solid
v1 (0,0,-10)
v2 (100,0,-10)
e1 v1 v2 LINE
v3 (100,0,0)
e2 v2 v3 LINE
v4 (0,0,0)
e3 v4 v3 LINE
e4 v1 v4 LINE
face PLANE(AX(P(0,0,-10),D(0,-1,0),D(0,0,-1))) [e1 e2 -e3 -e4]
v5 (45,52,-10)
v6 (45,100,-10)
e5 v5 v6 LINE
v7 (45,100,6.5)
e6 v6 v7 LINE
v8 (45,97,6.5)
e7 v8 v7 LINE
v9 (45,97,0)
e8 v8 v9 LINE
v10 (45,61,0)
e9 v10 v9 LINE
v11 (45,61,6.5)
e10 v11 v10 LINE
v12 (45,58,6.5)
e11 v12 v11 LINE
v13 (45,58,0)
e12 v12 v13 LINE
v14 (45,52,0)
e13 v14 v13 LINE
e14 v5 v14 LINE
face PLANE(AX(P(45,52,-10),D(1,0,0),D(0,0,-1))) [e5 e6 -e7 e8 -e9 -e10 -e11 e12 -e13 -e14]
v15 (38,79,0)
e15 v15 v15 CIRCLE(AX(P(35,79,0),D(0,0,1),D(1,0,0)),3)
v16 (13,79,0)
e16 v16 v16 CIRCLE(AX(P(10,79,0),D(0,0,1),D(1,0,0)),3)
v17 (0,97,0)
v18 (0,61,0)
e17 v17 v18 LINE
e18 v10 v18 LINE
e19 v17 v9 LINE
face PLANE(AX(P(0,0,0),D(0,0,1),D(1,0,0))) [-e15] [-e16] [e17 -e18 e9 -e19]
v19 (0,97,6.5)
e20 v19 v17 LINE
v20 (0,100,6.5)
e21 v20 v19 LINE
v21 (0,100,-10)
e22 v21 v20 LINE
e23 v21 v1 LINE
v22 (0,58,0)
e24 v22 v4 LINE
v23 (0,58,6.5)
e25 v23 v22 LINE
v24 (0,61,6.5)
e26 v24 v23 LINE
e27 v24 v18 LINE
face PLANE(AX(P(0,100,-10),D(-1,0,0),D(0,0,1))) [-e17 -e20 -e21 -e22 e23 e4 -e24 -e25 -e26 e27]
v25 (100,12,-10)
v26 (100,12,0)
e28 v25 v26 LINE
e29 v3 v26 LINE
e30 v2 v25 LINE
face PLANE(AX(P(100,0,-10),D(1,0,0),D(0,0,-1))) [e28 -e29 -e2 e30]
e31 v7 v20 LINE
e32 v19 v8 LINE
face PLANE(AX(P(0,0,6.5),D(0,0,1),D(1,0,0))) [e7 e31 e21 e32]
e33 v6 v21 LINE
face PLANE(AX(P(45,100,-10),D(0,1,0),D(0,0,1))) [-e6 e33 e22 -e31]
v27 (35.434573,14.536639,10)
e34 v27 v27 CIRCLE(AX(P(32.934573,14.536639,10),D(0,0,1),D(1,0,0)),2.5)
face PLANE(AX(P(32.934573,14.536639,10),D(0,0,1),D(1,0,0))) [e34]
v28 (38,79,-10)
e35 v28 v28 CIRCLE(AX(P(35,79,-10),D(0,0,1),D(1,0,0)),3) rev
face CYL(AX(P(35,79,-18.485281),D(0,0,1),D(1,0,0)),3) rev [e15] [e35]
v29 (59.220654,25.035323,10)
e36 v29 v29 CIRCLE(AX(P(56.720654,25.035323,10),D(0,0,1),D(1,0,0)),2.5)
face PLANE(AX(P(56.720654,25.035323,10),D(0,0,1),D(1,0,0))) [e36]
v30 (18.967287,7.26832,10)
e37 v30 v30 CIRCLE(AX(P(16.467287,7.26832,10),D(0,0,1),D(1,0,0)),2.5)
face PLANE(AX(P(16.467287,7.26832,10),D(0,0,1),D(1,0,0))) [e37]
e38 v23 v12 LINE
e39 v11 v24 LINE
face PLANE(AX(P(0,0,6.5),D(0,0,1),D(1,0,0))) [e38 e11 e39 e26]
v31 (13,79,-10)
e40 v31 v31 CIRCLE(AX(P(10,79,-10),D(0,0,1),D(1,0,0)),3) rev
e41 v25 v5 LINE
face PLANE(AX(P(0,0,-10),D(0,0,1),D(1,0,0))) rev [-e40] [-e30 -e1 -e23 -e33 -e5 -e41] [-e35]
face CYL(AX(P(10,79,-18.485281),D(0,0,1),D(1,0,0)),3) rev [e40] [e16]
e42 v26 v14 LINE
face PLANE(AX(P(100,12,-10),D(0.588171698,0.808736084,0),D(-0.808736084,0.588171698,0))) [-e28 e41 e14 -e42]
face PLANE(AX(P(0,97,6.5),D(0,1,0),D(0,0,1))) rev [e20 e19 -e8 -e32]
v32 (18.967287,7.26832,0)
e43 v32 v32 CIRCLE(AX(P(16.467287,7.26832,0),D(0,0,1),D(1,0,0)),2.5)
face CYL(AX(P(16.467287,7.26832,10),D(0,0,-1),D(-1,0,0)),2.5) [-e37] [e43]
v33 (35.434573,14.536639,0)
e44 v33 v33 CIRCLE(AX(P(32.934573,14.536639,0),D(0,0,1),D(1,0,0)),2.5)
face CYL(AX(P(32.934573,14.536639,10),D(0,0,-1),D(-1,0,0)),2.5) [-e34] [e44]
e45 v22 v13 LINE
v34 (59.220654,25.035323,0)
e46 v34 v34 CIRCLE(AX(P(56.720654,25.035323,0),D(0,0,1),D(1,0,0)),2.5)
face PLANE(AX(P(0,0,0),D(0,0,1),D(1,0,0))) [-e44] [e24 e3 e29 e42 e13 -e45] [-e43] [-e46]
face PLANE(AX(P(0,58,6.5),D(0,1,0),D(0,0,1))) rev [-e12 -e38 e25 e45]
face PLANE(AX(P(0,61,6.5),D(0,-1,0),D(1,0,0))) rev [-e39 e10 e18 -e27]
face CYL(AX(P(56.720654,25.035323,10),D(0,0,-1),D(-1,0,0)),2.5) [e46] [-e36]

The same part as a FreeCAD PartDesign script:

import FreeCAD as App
import Part
import Sketcher
Q = App.Units.Quantity


def add_polygon(sketch, points):
    """Adds a closed chain of lines whose ends are joined by coincident constraints."""
    first, n = sketch.GeometryCount, len(points)
    for a, b in zip(points, points[1:] + points[:1]):
        sketch.addGeometry(Part.LineSegment(App.Vector(*a, 0), App.Vector(*b, 0)), False)
    for i in range(n):
        sketch.addConstraint(Sketcher.Constraint("Coincident", first + i, 2, first + (i + 1) % n, 1))

doc = App.newDocument("Part")
body = doc.addObject("PartDesign::Body", "Body")

# Sketch on XY plane
sketch1 = doc.addObject("Sketcher::SketchObject", "Sketch")
body.addObject(sketch1)
sketch1.AttachmentSupport = (doc.XY_Plane, [""])
sketch1.MapMode = "FlatFace"
add_polygon(sketch1, [(0, 0), (100, 0), (100, 12), (45, 52), (45, 100), (0, 100)])  # lines 0-5
sketch1.addConstraint([
    Sketcher.Constraint("Horizontal", 0),
    Sketcher.Constraint("Vertical", 1),
    Sketcher.Constraint("Vertical", 3),
    Sketcher.Constraint("Horizontal", 4),
    Sketcher.Constraint("Vertical", 5),
    Sketcher.Constraint("Coincident", 5, 2, -1, 1),
    Sketcher.Constraint("Equal", 0, 5),
    Sketcher.Constraint("DistanceX", 0, 1, 0, 2, Q("100 mm")),
    Sketcher.Constraint("DistanceX", 4, 2, 4, 1, Q("45 mm")),
    Sketcher.Constraint("DistanceY", 1, 1, 1, 2, Q("12 mm")),
    Sketcher.Constraint("DistanceY", 3, 1, 3, 2, Q("48 mm")),
])
pad1 = doc.addObject("PartDesign::Pad", "Pad")
body.addObject(pad1)
pad1.Profile = sketch1
pad1.Length = 10
pad1.Reversed = True

# Sketch on XY plane
sketch2 = doc.addObject("Sketcher::SketchObject", "Sketch001")
body.addObject(sketch2)
sketch2.AttachmentSupport = (doc.XY_Plane, [""])
sketch2.MapMode = "FlatFace"
add_polygon(sketch2, [(0, 100), (0, 97), (45, 97), (45, 100)])  # lines 0-3
add_polygon(sketch2, [(0, 61), (0, 58), (45, 58), (45, 61)])  # lines 4-7
sketch2.addConstraint([
    Sketcher.Constraint("Vertical", 0),
    Sketcher.Constraint("Horizontal", 1),
    Sketcher.Constraint("Vertical", 2),
    Sketcher.Constraint("Horizontal", 3),
    Sketcher.Constraint("Vertical", 4),
    Sketcher.Constraint("Horizontal", 5),
    Sketcher.Constraint("Vertical", 6),
    Sketcher.Constraint("Horizontal", 7),
    Sketcher.Constraint("PointOnObject", 0, 2, -2),
    Sketcher.Constraint("PointOnObject", 4, 2, -2),
    Sketcher.Constraint("Vertical", 2, 2, 5, 2),
    Sketcher.Constraint("Equal", 2, 4),
    Sketcher.Constraint("DistanceX", 1, 1, 1, 2, Q("45 mm")),
    Sketcher.Constraint("DistanceY", 0, 2, 0, 1, Q("3 mm")),
    Sketcher.Constraint("DistanceY", -1, 1, 0, 2, Q("97 mm")),
    Sketcher.Constraint("DistanceY", -1, 1, 4, 2, Q("58 mm")),
])
pad2 = doc.addObject("PartDesign::Pad", "Pad001")
body.addObject(pad2)
pad2.Profile = sketch2
pad2.Length = 6.5

# Sketch on XY plane
sketch3 = doc.addObject("Sketcher::SketchObject", "Sketch002")
body.addObject(sketch3)
sketch3.AttachmentSupport = (doc.XY_Plane, [""])
sketch3.MapMode = "FlatFace"
sketch3.addGeometry([
    Part.Circle(App.Vector(10, 79, 0), App.Vector(0, 0, 1), 3),
    Part.Circle(App.Vector(35, 79, 0), App.Vector(0, 0, 1), 3),
], False)
sketch3.addConstraint([
    Sketcher.Constraint("Equal", 0, 1),
    Sketcher.Constraint("Horizontal", 0, 3, 1, 3),
    Sketcher.Constraint("Diameter", 0, Q("6 mm")),
    Sketcher.Constraint("DistanceX", -1, 1, 0, 3, Q("10 mm")),
    Sketcher.Constraint("DistanceY", -1, 1, 0, 3, Q("79 mm")),
    Sketcher.Constraint("DistanceX", -1, 1, 1, 3, Q("35 mm")),
])
pocket1 = doc.addObject("PartDesign::Pocket", "Pocket")
body.addObject(pocket1)
pocket1.Profile = sketch3
pocket1.Length = 10

# Sketch on XY plane
sketch4 = doc.addObject("Sketcher::SketchObject", "Sketch003")
body.addObject(sketch4)
sketch4.AttachmentSupport = (doc.XY_Plane, [""])
sketch4.MapMode = "FlatFace"
sketch4.addGeometry([
    Part.Circle(App.Vector(16.467287, 7.26832, 0), App.Vector(0, 0, 1), 2.5),
    Part.Circle(App.Vector(32.934573, 14.536639, 0), App.Vector(0, 0, 1), 2.5),
    Part.Circle(App.Vector(56.720654, 25.035323, 0), App.Vector(0, 0, 1), 2.5),
], False)
sketch4.addConstraint([
    Sketcher.Constraint("Equal", 0, 1),
    Sketcher.Constraint("Equal", 1, 2),
    Sketcher.Constraint("Diameter", 0, Q("5 mm")),
    Sketcher.Constraint("DistanceY", -1, 1, 0, 3, Q("7.26832 mm")),
    Sketcher.Constraint("DistanceY", -1, 1, 1, 3, Q("14.536639 mm")),
    Sketcher.Constraint("DistanceX", 1, 3, 2, 3, Q("23.786081 mm")),
    Sketcher.Constraint("DistanceX", -1, 1, 0, 3, Q("16.467287 mm")),
    Sketcher.Constraint("DistanceX", -1, 1, 1, 3, Q("32.934573 mm")),
    Sketcher.Constraint("DistanceY", -1, 1, 2, 3, Q("25.035323 mm")),
])
pad3 = doc.addObject("PartDesign::Pad", "Pad002")
body.addObject(pad3)
pad3.Profile = sketch4
pad3.Length = 10

doc.recompute()
